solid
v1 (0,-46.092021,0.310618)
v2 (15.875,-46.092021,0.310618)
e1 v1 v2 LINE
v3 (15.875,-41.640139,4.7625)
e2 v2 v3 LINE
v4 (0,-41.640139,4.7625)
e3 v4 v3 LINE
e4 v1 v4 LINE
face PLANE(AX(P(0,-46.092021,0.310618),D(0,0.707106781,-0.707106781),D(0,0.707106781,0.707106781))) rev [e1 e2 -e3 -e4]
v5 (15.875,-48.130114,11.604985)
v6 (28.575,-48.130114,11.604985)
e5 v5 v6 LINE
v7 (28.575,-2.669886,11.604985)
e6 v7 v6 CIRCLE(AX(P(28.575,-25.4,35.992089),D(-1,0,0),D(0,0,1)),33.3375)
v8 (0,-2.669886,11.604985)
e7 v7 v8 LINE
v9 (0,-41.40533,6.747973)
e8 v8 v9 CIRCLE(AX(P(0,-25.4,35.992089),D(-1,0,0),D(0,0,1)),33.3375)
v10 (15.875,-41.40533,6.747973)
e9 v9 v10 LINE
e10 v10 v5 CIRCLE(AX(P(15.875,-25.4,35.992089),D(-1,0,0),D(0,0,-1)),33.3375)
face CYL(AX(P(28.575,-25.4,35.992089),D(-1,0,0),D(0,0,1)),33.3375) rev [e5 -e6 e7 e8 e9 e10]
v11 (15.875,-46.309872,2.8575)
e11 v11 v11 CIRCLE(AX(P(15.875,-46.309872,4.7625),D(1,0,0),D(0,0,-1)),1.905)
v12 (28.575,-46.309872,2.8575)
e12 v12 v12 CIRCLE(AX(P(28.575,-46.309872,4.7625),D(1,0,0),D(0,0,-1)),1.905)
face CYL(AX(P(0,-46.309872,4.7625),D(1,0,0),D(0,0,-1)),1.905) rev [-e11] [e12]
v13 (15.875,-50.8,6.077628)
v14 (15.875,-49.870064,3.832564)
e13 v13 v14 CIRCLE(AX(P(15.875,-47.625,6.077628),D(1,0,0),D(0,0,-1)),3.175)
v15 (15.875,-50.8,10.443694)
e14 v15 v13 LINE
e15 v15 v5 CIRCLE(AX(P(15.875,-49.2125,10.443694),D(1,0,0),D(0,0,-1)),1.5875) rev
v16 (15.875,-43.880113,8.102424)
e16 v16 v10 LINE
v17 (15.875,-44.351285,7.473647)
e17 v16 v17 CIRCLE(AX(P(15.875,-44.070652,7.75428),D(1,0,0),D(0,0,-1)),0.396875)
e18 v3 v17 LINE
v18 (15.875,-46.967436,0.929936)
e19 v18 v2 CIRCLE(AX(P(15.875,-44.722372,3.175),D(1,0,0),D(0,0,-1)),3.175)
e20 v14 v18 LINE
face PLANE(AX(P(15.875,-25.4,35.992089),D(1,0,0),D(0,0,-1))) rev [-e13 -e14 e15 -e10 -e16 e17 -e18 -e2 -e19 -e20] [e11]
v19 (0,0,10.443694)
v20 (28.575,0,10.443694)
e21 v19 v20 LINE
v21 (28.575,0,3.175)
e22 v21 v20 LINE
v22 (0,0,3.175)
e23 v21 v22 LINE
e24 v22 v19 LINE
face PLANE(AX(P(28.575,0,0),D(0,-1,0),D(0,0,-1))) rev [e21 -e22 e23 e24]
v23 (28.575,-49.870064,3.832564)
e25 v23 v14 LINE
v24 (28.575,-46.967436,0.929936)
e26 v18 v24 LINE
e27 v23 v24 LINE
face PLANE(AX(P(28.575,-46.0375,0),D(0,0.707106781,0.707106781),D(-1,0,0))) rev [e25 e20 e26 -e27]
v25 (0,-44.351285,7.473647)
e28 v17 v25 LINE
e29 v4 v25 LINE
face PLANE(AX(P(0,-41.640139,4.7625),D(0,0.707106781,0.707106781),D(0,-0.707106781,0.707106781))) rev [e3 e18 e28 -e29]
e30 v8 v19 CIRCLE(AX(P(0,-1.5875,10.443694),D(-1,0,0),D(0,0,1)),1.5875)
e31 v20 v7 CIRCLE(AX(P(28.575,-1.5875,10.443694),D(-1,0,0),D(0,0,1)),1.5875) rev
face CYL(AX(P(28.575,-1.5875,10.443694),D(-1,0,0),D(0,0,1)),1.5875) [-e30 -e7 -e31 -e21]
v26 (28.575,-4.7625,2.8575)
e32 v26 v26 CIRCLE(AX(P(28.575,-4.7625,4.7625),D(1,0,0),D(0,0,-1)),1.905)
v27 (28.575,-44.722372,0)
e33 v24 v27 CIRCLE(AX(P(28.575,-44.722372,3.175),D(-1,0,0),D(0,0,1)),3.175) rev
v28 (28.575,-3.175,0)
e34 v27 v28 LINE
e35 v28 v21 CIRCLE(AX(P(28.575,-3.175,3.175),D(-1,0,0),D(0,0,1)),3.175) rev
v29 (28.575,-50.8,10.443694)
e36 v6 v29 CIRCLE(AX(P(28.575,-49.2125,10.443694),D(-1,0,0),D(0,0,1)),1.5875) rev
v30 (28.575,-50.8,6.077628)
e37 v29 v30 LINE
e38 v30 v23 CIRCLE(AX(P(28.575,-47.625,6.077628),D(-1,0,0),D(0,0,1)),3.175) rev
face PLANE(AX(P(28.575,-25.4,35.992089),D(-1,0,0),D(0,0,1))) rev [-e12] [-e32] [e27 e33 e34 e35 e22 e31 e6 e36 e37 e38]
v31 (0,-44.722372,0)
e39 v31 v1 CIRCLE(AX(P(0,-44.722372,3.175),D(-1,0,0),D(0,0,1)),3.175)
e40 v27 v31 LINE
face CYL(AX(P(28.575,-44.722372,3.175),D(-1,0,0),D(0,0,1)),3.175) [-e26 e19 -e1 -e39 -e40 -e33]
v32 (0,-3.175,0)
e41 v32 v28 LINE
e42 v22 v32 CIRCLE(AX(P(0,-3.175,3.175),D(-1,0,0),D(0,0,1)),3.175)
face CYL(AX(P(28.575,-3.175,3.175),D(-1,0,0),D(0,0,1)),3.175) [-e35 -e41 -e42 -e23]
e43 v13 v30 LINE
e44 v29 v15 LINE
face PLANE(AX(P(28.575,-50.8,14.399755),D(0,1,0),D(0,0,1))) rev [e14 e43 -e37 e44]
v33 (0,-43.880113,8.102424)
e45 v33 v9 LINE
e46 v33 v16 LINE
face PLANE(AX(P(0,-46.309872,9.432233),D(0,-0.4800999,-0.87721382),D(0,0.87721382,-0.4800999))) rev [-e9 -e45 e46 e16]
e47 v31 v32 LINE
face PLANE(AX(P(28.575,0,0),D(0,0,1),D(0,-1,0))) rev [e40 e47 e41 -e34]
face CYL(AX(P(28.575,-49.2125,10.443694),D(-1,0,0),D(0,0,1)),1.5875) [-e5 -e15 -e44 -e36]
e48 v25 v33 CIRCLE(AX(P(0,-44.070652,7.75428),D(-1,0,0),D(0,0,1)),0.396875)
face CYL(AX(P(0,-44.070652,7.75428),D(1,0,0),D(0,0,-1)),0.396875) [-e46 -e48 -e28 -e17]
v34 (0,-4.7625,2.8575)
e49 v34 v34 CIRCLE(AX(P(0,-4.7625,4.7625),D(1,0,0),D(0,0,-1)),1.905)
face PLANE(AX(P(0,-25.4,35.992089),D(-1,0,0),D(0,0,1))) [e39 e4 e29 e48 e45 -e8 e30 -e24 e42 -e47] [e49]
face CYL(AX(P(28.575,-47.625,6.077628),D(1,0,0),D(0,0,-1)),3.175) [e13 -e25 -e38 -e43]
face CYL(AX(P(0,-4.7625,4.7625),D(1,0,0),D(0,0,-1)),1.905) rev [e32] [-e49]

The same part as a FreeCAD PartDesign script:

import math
import FreeCAD as App
import Part
import Sketcher
Q = App.Units.Quantity


def edges_at(feature, points):
    """Names of the edges that pass closest to the given points."""
    edges = feature.Shape.Edges
    near = lambda p: min(range(len(edges)), key=lambda i: edges[i].distToShape(Part.Vertex(*p))[0])
    return sorted({f"Edge{near(p) + 1}" for p in points})

doc = App.newDocument("Part")
body = doc.addObject("PartDesign::Body", "Body")

# Sketch on YZ plane
sketch1 = body.newObject("Sketcher::SketchObject", "Sketch")
sketch1.AttachmentSupport = (doc.getObject("YZ_Plane"), [""])
sketch1.MapMode = "FlatFace"
sketch1.addGeometry([
    Part.LineSegment(App.Vector(0, 0, 0), App.Vector(0, 14.399755, 0)),
    Part.ArcOfCircle(Part.Circle(App.Vector(-25.4, 35.992089, 0), App.Vector(0, 0, 1), 33.3375), math.radians(-139.632406), math.radians(-40.367594)),
    Part.LineSegment(App.Vector(-50.8, 14.399755, 0), App.Vector(-50.8, 0, 0)),
    Part.LineSegment(App.Vector(-50.8, 0, 0), App.Vector(0, 0, 0)),
], False)
sketch1.addConstraint([
    Sketcher.Constraint("Coincident", 0, 2, 1, 2),
    Sketcher.Constraint("Coincident", 1, 1, 2, 1),
    Sketcher.Constraint("Coincident", 2, 2, 3, 1),
    Sketcher.Constraint("Coincident", 3, 2, 0, 1),
    Sketcher.Constraint("Vertical", 0),
    Sketcher.Constraint("Vertical", 2),
    Sketcher.Constraint("Horizontal", 3),
    Sketcher.Constraint("Coincident", 3, 2, -1, 1),
    Sketcher.Constraint("Horizontal", 0, 2, 1, 1),
    Sketcher.Constraint("DistanceX", 3, 1, 3, 2, Q("2 in")),
    Sketcher.Constraint("Radius", 1, Q("1.3125 in")),
    Sketcher.Constraint("DistanceY", 0, 1, 0, 2, 14.399755),
])
pad1 = body.newObject("PartDesign::Pad", "Pad")
pad1.Profile = sketch1
pad1.Length = Q("1.125 in")
doc.recompute()

chamfer = body.newObject("PartDesign::Chamfer", "Chamfer")
chamfer.Base = (pad1, edges_at(pad1, [(14.287, -50.8, 0)]))
chamfer.Size = Q("0.1875 in")
doc.recompute()

fillet = body.newObject("PartDesign::Fillet", "Fillet")
fillet.Base = (chamfer, edges_at(chamfer, [(14.287, -46.038, 0), (14.287, -50.8, 4.763)]))
fillet.Radius = Q("0.125 in")

# Sketch on YZ plane
sketch2 = body.newObject("Sketcher::SketchObject", "Sketch001")
sketch2.AttachmentSupport = (doc.getObject("YZ_Plane"), [""])
sketch2.MapMode = "FlatFace"
sketch2.AttachmentOffset = App.Placement(App.Vector(0, 0, 0.625 * 25.4), App.Rotation())
sketch2.addGeometry([
    Part.LineSegment(App.Vector(-46.309872, 9.432233, 0), App.Vector(-41.40533, 6.747973, 0)),  # 0
    Part.ArcOfCircle(Part.Circle(App.Vector(-25.4, 35.992089, 0), App.Vector(0, 0, 1), 33.3375), math.radians(-139.632406), math.radians(-118.691927)),  # 1
    Part.LineSegment(App.Vector(-50.8, 14.399755, 0), App.Vector(-50.8, 6.077628, 0)),  # 2
    Part.ArcOfCircle(Part.Circle(App.Vector(-47.625, 6.077628, 0), App.Vector(0, 0, 1), 3.175), math.radians(180), math.radians(225)),  # 3
    Part.LineSegment(App.Vector(-49.870064, 3.832564, 0), App.Vector(-46.967436, 0.929936, 0)),  # 4
    Part.ArcOfCircle(Part.Circle(App.Vector(-44.722372, 3.175, 0), App.Vector(0, 0, 1), 3.175), math.radians(-135), math.radians(-115.555523)),  # 5
    Part.LineSegment(App.Vector(-46.092021, 0.310618, 0), App.Vector(-41.640139, 4.7625, 0)),  # 6
    Part.LineSegment(App.Vector(-41.640139, 4.7625, 0), App.Vector(-46.309872, 9.432233, 0)),  # 7
], False)
sketch2.addConstraint([
    Sketcher.Constraint("Tangent", 0, 2, 1, 2),
    Sketcher.Constraint("Coincident", 1, 1, 2, 1),
    Sketcher.Constraint("Tangent", 2, 2, 3, 1),
    Sketcher.Constraint("Tangent", 3, 2, 4, 1),
    Sketcher.Constraint("Tangent", 4, 2, 5, 1),
    Sketcher.Constraint("Coincident", 5, 2, 6, 1),
    Sketcher.Constraint("Coincident", 6, 2, 7, 1),
    Sketcher.Constraint("Coincident", 7, 2, 0, 1),
    Sketcher.Constraint("Vertical", 2),
    Sketcher.Constraint("Equal", 3, 5),
    Sketcher.Constraint("Perpendicular", 4, 6),
    Sketcher.Constraint("Perpendicular", 6, 7),
    Sketcher.Constraint("DistanceX", 1, 3, -1, 1, Q("1 in")),
    Sketcher.Constraint("DistanceX", 1, 1, -1, 1, Q("2 in")),
    Sketcher.Constraint("Angle", 4, Q("-45 deg")),
    Sketcher.Constraint("Radius", 1, Q("1.3125 in")),
    Sketcher.Constraint("Radius", 3, Q("0.125 in")),
    Sketcher.Constraint("Distance", 7, Q("0.26 in")),
    Sketcher.Constraint("DistanceY", -1, 1, 5, 3, Q("0.125 in")),
    Sketcher.Constraint("DistanceY", -1, 1, 6, 2, Q("0.1875 in")),
    Sketcher.Constraint("DistanceX", 7, 2, 5, 3, Q("0.0625 in")),
    Sketcher.Constraint("DistanceY", 2, 2, 2, 1, 8.322127),
    Sketcher.Constraint("DistanceY", -1, 1, 1, 3, 35.992089),
])
pocket1 = body.newObject("PartDesign::Pocket", "Pocket")
pocket1.Profile = sketch2
pocket1.Type = "ThroughAll"
doc.recompute()

fillet2 = body.newObject("PartDesign::Fillet", "Fillet001")
fillet2.Base = (pocket1, edges_at(pocket1, [(7.938, -46.31, 9.432)]))
fillet2.Radius = Q("0.015625 in")
doc.recompute()

fillet3 = body.newObject("PartDesign::Fillet", "Fillet002")
fillet3.Base = (fillet2, edges_at(fillet2, [(14.287, 0, 0)]))
fillet3.Radius = Q("0.125 in")
doc.recompute()

fillet4 = body.newObject("PartDesign::Fillet", "Fillet003")
fillet4.Base = (fillet3, edges_at(fillet3, [(22.225, -50.8, 14.4), (14.287, 0, 14.4)]))
fillet4.Radius = Q("0.0625 in")

# Sketch on YZ plane
sketch3 = body.newObject("Sketcher::SketchObject", "Sketch002")
sketch3.AttachmentSupport = (doc.getObject("YZ_Plane"), [""])
sketch3.MapMode = "FlatFace"
sketch3.AttachmentOffset = App.Placement(App.Vector(0, 0, 1.125 * 25.4), App.Rotation())
sketch3.addGeometry([
    Part.Circle(App.Vector(-4.7625, 4.7625, 0), App.Vector(0, 0, 1), 1.905),
    Part.Circle(App.Vector(-46.309872, 4.7625, 0), App.Vector(0, 0, 1), 1.905),
], False)
sketch3.addConstraint([
    Sketcher.Constraint("Equal", 0, 1),
    Sketcher.Constraint("Horizontal", 0, 3, 1, 3),
    Sketcher.Constraint("Diameter", 0, Q("0.15 in")),
    Sketcher.Constraint("DistanceX", 0, 3, -1, 1, Q("0.1875 in")),
    Sketcher.Constraint("DistanceY", -1, 1, 0, 3, Q("0.1875 in")),
    Sketcher.Constraint("DistanceX", 1, 3, -1, 1, 46.309872),
])
pocket2 = body.newObject("PartDesign::Pocket", "Pocket001")
pocket2.Profile = sketch3
pocket2.Type = "ThroughAll"

doc.recompute()
